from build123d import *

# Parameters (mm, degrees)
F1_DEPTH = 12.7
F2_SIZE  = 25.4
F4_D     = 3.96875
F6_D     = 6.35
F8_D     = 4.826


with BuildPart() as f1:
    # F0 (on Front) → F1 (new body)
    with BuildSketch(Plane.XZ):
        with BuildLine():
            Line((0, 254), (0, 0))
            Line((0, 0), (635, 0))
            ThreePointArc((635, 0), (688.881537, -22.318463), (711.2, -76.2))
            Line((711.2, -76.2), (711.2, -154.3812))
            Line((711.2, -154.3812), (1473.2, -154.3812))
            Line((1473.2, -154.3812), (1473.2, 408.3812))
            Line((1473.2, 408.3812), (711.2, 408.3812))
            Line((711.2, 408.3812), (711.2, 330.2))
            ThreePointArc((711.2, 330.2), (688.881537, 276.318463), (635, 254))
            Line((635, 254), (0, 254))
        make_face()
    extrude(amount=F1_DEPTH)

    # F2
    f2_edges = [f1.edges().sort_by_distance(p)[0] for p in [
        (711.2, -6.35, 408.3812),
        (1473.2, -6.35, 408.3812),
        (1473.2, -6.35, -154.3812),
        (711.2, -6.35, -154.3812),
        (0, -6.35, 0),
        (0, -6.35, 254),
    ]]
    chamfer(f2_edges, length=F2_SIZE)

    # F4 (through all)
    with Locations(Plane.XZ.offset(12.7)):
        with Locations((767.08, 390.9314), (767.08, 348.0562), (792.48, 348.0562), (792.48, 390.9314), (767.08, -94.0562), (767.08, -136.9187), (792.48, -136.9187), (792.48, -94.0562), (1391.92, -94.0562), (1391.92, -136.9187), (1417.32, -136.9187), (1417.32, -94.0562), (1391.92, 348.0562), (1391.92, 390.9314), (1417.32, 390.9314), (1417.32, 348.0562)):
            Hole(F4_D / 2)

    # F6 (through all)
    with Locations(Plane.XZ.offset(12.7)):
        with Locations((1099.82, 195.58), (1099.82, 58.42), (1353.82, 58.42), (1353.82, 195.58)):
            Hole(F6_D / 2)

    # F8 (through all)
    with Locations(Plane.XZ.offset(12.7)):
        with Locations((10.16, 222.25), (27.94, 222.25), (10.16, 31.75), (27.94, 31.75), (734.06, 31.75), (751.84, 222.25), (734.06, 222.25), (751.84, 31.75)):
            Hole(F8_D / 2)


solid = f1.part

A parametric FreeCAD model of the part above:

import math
import FreeCAD as App
import Part
import Sketcher
from FreeCAD import Vector
Q = App.Units.Quantity


def edges_at(feature, points):
    """Names of the edges that pass closest to the given points."""
    edges = feature.Shape.Edges
    near = lambda p: min(range(len(edges)), key=lambda i: edges[i].distToShape(Part.Vertex(*p))[0])
    return sorted({f"Edge{near(p) + 1}" for p in points})

doc = App.newDocument("Part")
params = doc.addObject("Spreadsheet::Sheet", "Params")
for row, (alias, value) in enumerate([
    ("sketch1_radius", "3 in"),
    ("sketch1_width", "25 in"),
    ("sketch1_width2", "30 in"),
    ("sketch1_height", "10 in"),
    ("sketch1_height2", "3.078 in"),
    ("pad1_length", "0.5 in"),
    ("chamfer_size", "1 in"),
    ("sketch2_diameter", "0.15625 in"),
    ("hole_diameter", "0.15625 in"),
    ("sketch3_diameter", "0.25 in"),
    ("hole2_diameter", "0.25 in"),
    ("sketch4_diameter", "0.19 in"),
    ("hole3_diameter", "0.19 in"),
], start=1):
    params.set(f"A{row}", alias)
    params.set(f"B{row}", "=" + value)
    params.setAlias(f"B{row}", alias)

body = doc.addObject("PartDesign::Body", "Body")

# Sketch on XZ plane
sketch1 = body.newObject("Sketcher::SketchObject", "Sketch")
sketch1.AttachmentSupport = (doc.getObject("XZ_Plane"), [""])
sketch1.MapMode = "FlatFace"
sketch1.addGeometry(Part.LineSegment(Vector(0, 254, 0), Vector(0, 0, 0)), False)
sketch1.addGeometry(Part.LineSegment(Vector(0, 0, 0), Vector(635, 0, 0)), False)
sketch1.addGeometry(Part.ArcOfCircle(Part.Circle(Vector(635, -76, 0), Vector(0, 0, 1), 76), math.radians(0), math.radians(90)), False)
sketch1.addGeometry(Part.LineSegment(Vector(711, -76, 0), Vector(711, -154, 0)), False)
sketch1.addGeometry(Part.LineSegment(Vector(711, -154, 0), Vector(1473, -154, 0)), False)
sketch1.addGeometry(Part.LineSegment(Vector(1473, -154, 0), Vector(1473, 408, 0)), False)
sketch1.addGeometry(Part.LineSegment(Vector(1473, 408, 0), Vector(711, 408, 0)), False)
sketch1.addGeometry(Part.LineSegment(Vector(711, 408, 0), Vector(711, 330, 0)), False)
sketch1.addGeometry(Part.ArcOfCircle(Part.Circle(Vector(635, 330, 0), Vector(0, 0, 1), 76), math.radians(-90), math.radians(0)), False)
sketch1.addGeometry(Part.LineSegment(Vector(635, 254, 0), Vector(0, 254, 0)), False)
sketch1.addConstraint(Sketcher.Constraint("Coincident", 0, 2, 1, 1))
sketch1.addConstraint(Sketcher.Constraint("Tangent", 1, 2, 2, 2))
sketch1.addConstraint(Sketcher.Constraint("Tangent", 2, 1, 3, 1))
sketch1.addConstraint(Sketcher.Constraint("Coincident", 3, 2, 4, 1))
sketch1.addConstraint(Sketcher.Constraint("Coincident", 4, 2, 5, 1))
sketch1.addConstraint(Sketcher.Constraint("Coincident", 5, 2, 6, 1))
sketch1.addConstraint(Sketcher.Constraint("Coincident", 6, 2, 7, 1))
sketch1.addConstraint(Sketcher.Constraint("Tangent", 7, 2, 8, 2))
sketch1.addConstraint(Sketcher.Constraint("Tangent", 8, 1, 9, 1))
sketch1.addConstraint(Sketcher.Constraint("Coincident", 9, 2, 0, 1))
sketch1.addConstraint(Sketcher.Constraint("Vertical", 0))
sketch1.addConstraint(Sketcher.Constraint("Horizontal", 1))
sketch1.addConstraint(Sketcher.Constraint("Vertical", 3))
sketch1.addConstraint(Sketcher.Constraint("Horizontal", 4))
sketch1.addConstraint(Sketcher.Constraint("Vertical", 5))
sketch1.addConstraint(Sketcher.Constraint("Horizontal", 6))
sketch1.addConstraint(Sketcher.Constraint("Vertical", 7))
sketch1.addConstraint(Sketcher.Constraint("Horizontal", 9))
sketch1.addConstraint(Sketcher.Constraint("Coincident", 0, 2, -1, 1))
sketch1.addConstraint(Sketcher.Constraint("Equal", 2, 8))
sketch1.addConstraint(Sketcher.Constraint("Vertical", 2, 3, 8, 3))
sketch1.addConstraint(Sketcher.Constraint("Equal", 3, 7))
sketch1.addConstraint(Sketcher.Constraint("Radius", 2, Q("3 in")))
sketch1.addConstraint(Sketcher.Constraint("DistanceX", 1, 1, 1, 2, Q("25 in")))
sketch1.addConstraint(Sketcher.Constraint("DistanceX", 4, 1, 4, 2, Q("30 in")))
sketch1.addConstraint(Sketcher.Constraint("DistanceY", 0, 2, 0, 1, Q("10 in")))
sketch1.addConstraint(Sketcher.Constraint("DistanceY", 3, 2, 3, 1, Q("3.078 in")))
sketch1.setExpression("Constraints[22]", "Params.sketch1_radius")
sketch1.setExpression("Constraints[23]", "Params.sketch1_width")
sketch1.setExpression("Constraints[24]", "Params.sketch1_width2")
sketch1.setExpression("Constraints[25]", "Params.sketch1_height")
sketch1.setExpression("Constraints[26]", "Params.sketch1_height2")
pad1 = body.newObject("PartDesign::Pad", "Pad")
pad1.Profile = sketch1
pad1.setExpression("Length", "Params.pad1_length")
doc.recompute()

chamfer = body.newObject("PartDesign::Chamfer", "Chamfer")
chamfer.Base = (pad1, edges_at(pad1, [
    (711.2, -6.35, 408.381),
    (1473.2, -6.35, 408.381),
    (1473.2, -6.35, -154.381),
    (711.2, -6.35, -154.381),
    (0, -6.35, 0),
    (0, -6.35, 254),
]))
chamfer.setExpression("Size", "Params.chamfer_size")

# Sketch on XZ plane
sketch2 = body.newObject("Sketcher::SketchObject", "Sketch001")
sketch2.AttachmentSupport = (doc.getObject("XZ_Plane"), [""])
sketch2.MapMode = "FlatFace"
sketch2.AttachmentOffset = App.Placement(Vector(0, 0, 0.5 * 25.4), App.Rotation())
sketch2.addGeometry(Part.Circle(Vector(767.1, 390.9, 0), Vector(0, 0, 1), 2), False)
sketch2.addGeometry(Part.Circle(Vector(767.1, 348.1, 0), Vector(0, 0, 1), 2), False)
sketch2.addGeometry(Part.Circle(Vector(792.5, 348.1, 0), Vector(0, 0, 1), 2), False)
sketch2.addGeometry(Part.Circle(Vector(792.5, 390.9, 0), Vector(0, 0, 1), 2), False)
sketch2.addGeometry(Part.Circle(Vector(767.1, -94.1, 0), Vector(0, 0, 1), 2), False)
sketch2.addGeometry(Part.Circle(Vector(767.1, -136.9, 0), Vector(0, 0, 1), 2), False)
sketch2.addGeometry(Part.Circle(Vector(792.5, -136.9, 0), Vector(0, 0, 1), 2), False)
sketch2.addGeometry(Part.Circle(Vector(792.5, -94.1, 0), Vector(0, 0, 1), 2), False)
sketch2.addGeometry(Part.Circle(Vector(1391.9, -94.1, 0), Vector(0, 0, 1), 2), False)
sketch2.addGeometry(Part.Circle(Vector(1391.9, -136.9, 0), Vector(0, 0, 1), 2), False)
sketch2.addGeometry(Part.Circle(Vector(1417.3, -136.9, 0), Vector(0, 0, 1), 2), False)
sketch2.addGeometry(Part.Circle(Vector(1417.3, -94.1, 0), Vector(0, 0, 1), 2), False)
sketch2.addGeometry(Part.Circle(Vector(1391.9, 348.1, 0), Vector(0, 0, 1), 2), False)
sketch2.addGeometry(Part.Circle(Vector(1391.9, 390.9, 0), Vector(0, 0, 1), 2), False)
sketch2.addGeometry(Part.Circle(Vector(1417.3, 390.9, 0), Vector(0, 0, 1), 2), False)
sketch2.addGeometry(Part.Circle(Vector(1417.3, 348.1, 0), Vector(0, 0, 1), 2), False)
sketch2.addConstraint(Sketcher.Constraint("Equal", 0, 1))
sketch2.addConstraint(Sketcher.Constraint("Equal", 1, 2))
sketch2.addConstraint(Sketcher.Constraint("Equal", 2, 3))
sketch2.addConstraint(Sketcher.Constraint("Equal", 3, 4))
sketch2.addConstraint(Sketcher.Constraint("Equal", 4, 5))
sketch2.addConstraint(Sketcher.Constraint("Equal", 5, 6))
sketch2.addConstraint(Sketcher.Constraint("Equal", 6, 7))
sketch2.addConstraint(Sketcher.Constraint("Equal", 7, 8))
sketch2.addConstraint(Sketcher.Constraint("Equal", 8, 9))
sketch2.addConstraint(Sketcher.Constraint("Equal", 9, 10))
sketch2.addConstraint(Sketcher.Constraint("Equal", 10, 11))
sketch2.addConstraint(Sketcher.Constraint("Equal", 11, 12))
sketch2.addConstraint(Sketcher.Constraint("Equal", 12, 13))
sketch2.addConstraint(Sketcher.Constraint("Equal", 13, 14))
sketch2.addConstraint(Sketcher.Constraint("Equal", 14, 15))
sketch2.addConstraint(Sketcher.Constraint("Horizontal", 1, 3, 2, 3))
sketch2.addConstraint(Sketcher.Constraint("Horizontal", 0, 3, 3, 3))
sketch2.addConstraint(Sketcher.Constraint("Horizontal", 5, 3, 6, 3))
sketch2.addConstraint(Sketcher.Constraint("Horizontal", 4, 3, 7, 3))
sketch2.addConstraint(Sketcher.Constraint("Horizontal", 7, 3, 8, 3))
sketch2.addConstraint(Sketcher.Constraint("Horizontal", 6, 3, 9, 3))
sketch2.addConstraint(Sketcher.Constraint("Horizontal", 9, 3, 10, 3))
sketch2.addConstraint(Sketcher.Constraint("Horizontal", 8, 3, 11, 3))
sketch2.addConstraint(Sketcher.Constraint("Horizontal", 2, 3, 12, 3))
sketch2.addConstraint(Sketcher.Constraint("Horizontal", 3, 3, 13, 3))
sketch2.addConstraint(Sketcher.Constraint("Horizontal", 13, 3, 14, 3))
sketch2.addConstraint(Sketcher.Constraint("Horizontal", 12, 3, 15, 3))
sketch2.addConstraint(Sketcher.Constraint("Vertical", 0, 3, 1, 3))
sketch2.addConstraint(Sketcher.Constraint("Vertical", 2, 3, 3, 3))
sketch2.addConstraint(Sketcher.Constraint("Vertical", 1, 3, 4, 3))
sketch2.addConstraint(Sketcher.Constraint("Vertical", 4, 3, 5, 3))
sketch2.addConstraint(Sketcher.Constraint("Vertical", 3, 3, 6, 3))
sketch2.addConstraint(Sketcher.Constraint("Vertical", 6, 3, 7, 3))
sketch2.addConstraint(Sketcher.Constraint("Vertical", 8, 3, 9, 3))
sketch2.addConstraint(Sketcher.Constraint("Vertical", 10, 3, 11, 3))
sketch2.addConstraint(Sketcher.Constraint("Vertical", 9, 3, 12, 3))
sketch2.addConstraint(Sketcher.Constraint("Vertical", 12, 3, 13, 3))
sketch2.addConstraint(Sketcher.Constraint("Vertical", 11, 3, 14, 3))
sketch2.addConstraint(Sketcher.Constraint("Vertical", 14, 3, 15, 3))
sketch2.addConstraint(Sketcher.Constraint("Diameter", 0, Q("0.15625 in")))
sketch2.addConstraint(Sketcher.Constraint("DistanceX", 1, 3, 2, 3, Q("1 in")))
sketch2.addConstraint(Sketcher.Constraint("DistanceX", 9, 3, 10, 3, Q("1 in")))
sketch2.addConstraint(Sketcher.Constraint("DistanceX", -1, 1, 0, 3, Q("30.2 in")))
sketch2.addConstraint(Sketcher.Constraint("DistanceX", -1, 1, 8, 3, Q("54.8 in")))
sketch2.addConstraint(Sketcher.Constraint("DistanceY", -1, 1, 0, 3, Q("15.391 in")))
sketch2.addConstraint(Sketcher.Constraint("DistanceY", -1, 1, 1, 3, Q("13.703 in")))
sketch2.addConstraint(Sketcher.Constraint("DistanceY", 4, 3, -1, 1, Q("3.703 in")))
sketch2.addConstraint(Sketcher.Constraint("DistanceY", 5, 3, 4, 3, Q("1.6875 in")))
sketch2.setExpression("Constraints[39]", "Params.sketch2_diameter")
doc.recompute()
hole = body.newObject("PartDesign::Hole", "Hole")
hole.Profile = sketch2
hole.ThreadType = "None"
hole.setExpression("Diameter", "Params.hole_diameter")
hole.DepthType = "ThroughAll"

# Sketch on XZ plane
sketch3 = body.newObject("Sketcher::SketchObject", "Sketch002")
sketch3.AttachmentSupport = (doc.getObject("XZ_Plane"), [""])
sketch3.MapMode = "FlatFace"
sketch3.AttachmentOffset = App.Placement(Vector(0, 0, 0.5 * 25.4), App.Rotation())
sketch3.addGeometry(Part.Circle(Vector(1099.8, 195.6, 0), Vector(0, 0, 1), 3.2), False)
sketch3.addGeometry(Part.Circle(Vector(1099.8, 58.4, 0), Vector(0, 0, 1), 3.2), False)
sketch3.addGeometry(Part.Circle(Vector(1353.8, 58.4, 0), Vector(0, 0, 1), 3.2), False)
sketch3.addGeometry(Part.Circle(Vector(1353.8, 195.6, 0), Vector(0, 0, 1), 3.2), False)
sketch3.addConstraint(Sketcher.Constraint("Equal", 0, 1))
sketch3.addConstraint(Sketcher.Constraint("Equal", 1, 2))
sketch3.addConstraint(Sketcher.Constraint("Equal", 2, 3))
sketch3.addConstraint(Sketcher.Constraint("Horizontal", 1, 3, 2, 3))
sketch3.addConstraint(Sketcher.Constraint("Horizontal", 0, 3, 3, 3))
sketch3.addConstraint(Sketcher.Constraint("Vertical", 0, 3, 1, 3))
sketch3.addConstraint(Sketcher.Constraint("Vertical", 2, 3, 3, 3))
sketch3.addConstraint(Sketcher.Constraint("Diameter", 0, Q("0.25 in")))
sketch3.addConstraint(Sketcher.Constraint("DistanceX", 1, 3, 2, 3, Q("10 in")))
sketch3.addConstraint(Sketcher.Constraint("DistanceX", -1, 1, 0, 3, Q("43.3 in")))
sketch3.addConstraint(Sketcher.Constraint("DistanceY", -1, 1, 0, 3, Q("7.7 in")))
sketch3.addConstraint(Sketcher.Constraint("DistanceY", -1, 1, 1, 3, Q("2.3 in")))
sketch3.setExpression("Constraints[7]", "Params.sketch3_diameter")
doc.recompute()
hole2 = body.newObject("PartDesign::Hole", "Hole001")
hole2.Profile = sketch3
hole2.ThreadType = "None"
hole2.setExpression("Diameter", "Params.hole2_diameter")
hole2.DepthType = "ThroughAll"

# Sketch on XZ plane
sketch4 = body.newObject("Sketcher::SketchObject", "Sketch003")
sketch4.AttachmentSupport = (doc.getObject("XZ_Plane"), [""])
sketch4.MapMode = "FlatFace"
sketch4.AttachmentOffset = App.Placement(Vector(0, 0, 0.5 * 25.4), App.Rotation())
sketch4.addGeometry(Part.Circle(Vector(10.2, 222.2, 0), Vector(0, 0, 1), 2.4), False)
sketch4.addGeometry(Part.Circle(Vector(27.9, 222.2, 0), Vector(0, 0, 1), 2.4), False)
sketch4.addGeometry(Part.Circle(Vector(10.2, 31.8, 0), Vector(0, 0, 1), 2.4), False)
sketch4.addGeometry(Part.Circle(Vector(27.9, 31.8, 0), Vector(0, 0, 1), 2.4), False)
sketch4.addGeometry(Part.Circle(Vector(734.1, 31.8, 0), Vector(0, 0, 1), 2.4), False)
sketch4.addGeometry(Part.Circle(Vector(751.8, 222.2, 0), Vector(0, 0, 1), 2.4), False)
sketch4.addGeometry(Part.Circle(Vector(734.1, 222.2, 0), Vector(0, 0, 1), 2.4), False)
sketch4.addGeometry(Part.Circle(Vector(751.8, 31.8, 0), Vector(0, 0, 1), 2.4), False)
sketch4.addConstraint(Sketcher.Constraint("Equal", 0, 1))
sketch4.addConstraint(Sketcher.Constraint("Equal", 1, 2))
sketch4.addConstraint(Sketcher.Constraint("Equal", 2, 3))
sketch4.addConstraint(Sketcher.Constraint("Equal", 3, 4))
sketch4.addConstraint(Sketcher.Constraint("Equal", 4, 5))
sketch4.addConstraint(Sketcher.Constraint("Equal", 5, 6))
sketch4.addConstraint(Sketcher.Constraint("Equal", 6, 7))
sketch4.addConstraint(Sketcher.Constraint("Horizontal", 0, 3, 1, 3))
sketch4.addConstraint(Sketcher.Constraint("Horizontal", 2, 3, 3, 3))
sketch4.addConstraint(Sketcher.Constraint("Horizontal", 3, 3, 4, 3))
sketch4.addConstraint(Sketcher.Constraint("Horizontal", 1, 3, 5, 3))
sketch4.addConstraint(Sketcher.Constraint("Horizontal", 5, 3, 6, 3))
sketch4.addConstraint(Sketcher.Constraint("Horizontal", 4, 3, 7, 3))
sketch4.addConstraint(Sketcher.Constraint("Vertical", 0, 3, 2, 3))
sketch4.addConstraint(Sketcher.Constraint("Vertical", 1, 3, 3, 3))
sketch4.addConstraint(Sketcher.Constraint("Vertical", 4, 3, 6, 3))
sketch4.addConstraint(Sketcher.Constraint("Vertical", 5, 3, 7, 3))
sketch4.addConstraint(Sketcher.Constraint("Diameter", 0, Q("0.19 in")))
sketch4.addConstraint(Sketcher.Constraint("DistanceX", -1, 1, 0, 3, Q("0.4 in")))
sketch4.addConstraint(Sketcher.Constraint("DistanceX", -1, 1, 1, 3, Q("1.1 in")))
sketch4.addConstraint(Sketcher.Constraint("DistanceX", -1, 1, 4, 3, Q("28.9 in")))
sketch4.addConstraint(Sketcher.Constraint("DistanceX", -1, 1, 5, 3, Q("29.6 in")))
sketch4.addConstraint(Sketcher.Constraint("DistanceY", 2, 3, 0, 3, Q("7.5 in")))
sketch4.addConstraint(Sketcher.Constraint("DistanceY", -1, 1, 0, 3, Q("8.75 in")))
sketch4.setExpression("Constraints[17]", "Params.sketch4_diameter")
doc.recompute()
hole3 = body.newObject("PartDesign::Hole", "Hole002")
hole3.Profile = sketch4
hole3.ThreadType = "None"
hole3.setExpression("Diameter", "Params.hole3_diameter")
hole3.DepthType = "ThroughAll"

doc.recompute()
